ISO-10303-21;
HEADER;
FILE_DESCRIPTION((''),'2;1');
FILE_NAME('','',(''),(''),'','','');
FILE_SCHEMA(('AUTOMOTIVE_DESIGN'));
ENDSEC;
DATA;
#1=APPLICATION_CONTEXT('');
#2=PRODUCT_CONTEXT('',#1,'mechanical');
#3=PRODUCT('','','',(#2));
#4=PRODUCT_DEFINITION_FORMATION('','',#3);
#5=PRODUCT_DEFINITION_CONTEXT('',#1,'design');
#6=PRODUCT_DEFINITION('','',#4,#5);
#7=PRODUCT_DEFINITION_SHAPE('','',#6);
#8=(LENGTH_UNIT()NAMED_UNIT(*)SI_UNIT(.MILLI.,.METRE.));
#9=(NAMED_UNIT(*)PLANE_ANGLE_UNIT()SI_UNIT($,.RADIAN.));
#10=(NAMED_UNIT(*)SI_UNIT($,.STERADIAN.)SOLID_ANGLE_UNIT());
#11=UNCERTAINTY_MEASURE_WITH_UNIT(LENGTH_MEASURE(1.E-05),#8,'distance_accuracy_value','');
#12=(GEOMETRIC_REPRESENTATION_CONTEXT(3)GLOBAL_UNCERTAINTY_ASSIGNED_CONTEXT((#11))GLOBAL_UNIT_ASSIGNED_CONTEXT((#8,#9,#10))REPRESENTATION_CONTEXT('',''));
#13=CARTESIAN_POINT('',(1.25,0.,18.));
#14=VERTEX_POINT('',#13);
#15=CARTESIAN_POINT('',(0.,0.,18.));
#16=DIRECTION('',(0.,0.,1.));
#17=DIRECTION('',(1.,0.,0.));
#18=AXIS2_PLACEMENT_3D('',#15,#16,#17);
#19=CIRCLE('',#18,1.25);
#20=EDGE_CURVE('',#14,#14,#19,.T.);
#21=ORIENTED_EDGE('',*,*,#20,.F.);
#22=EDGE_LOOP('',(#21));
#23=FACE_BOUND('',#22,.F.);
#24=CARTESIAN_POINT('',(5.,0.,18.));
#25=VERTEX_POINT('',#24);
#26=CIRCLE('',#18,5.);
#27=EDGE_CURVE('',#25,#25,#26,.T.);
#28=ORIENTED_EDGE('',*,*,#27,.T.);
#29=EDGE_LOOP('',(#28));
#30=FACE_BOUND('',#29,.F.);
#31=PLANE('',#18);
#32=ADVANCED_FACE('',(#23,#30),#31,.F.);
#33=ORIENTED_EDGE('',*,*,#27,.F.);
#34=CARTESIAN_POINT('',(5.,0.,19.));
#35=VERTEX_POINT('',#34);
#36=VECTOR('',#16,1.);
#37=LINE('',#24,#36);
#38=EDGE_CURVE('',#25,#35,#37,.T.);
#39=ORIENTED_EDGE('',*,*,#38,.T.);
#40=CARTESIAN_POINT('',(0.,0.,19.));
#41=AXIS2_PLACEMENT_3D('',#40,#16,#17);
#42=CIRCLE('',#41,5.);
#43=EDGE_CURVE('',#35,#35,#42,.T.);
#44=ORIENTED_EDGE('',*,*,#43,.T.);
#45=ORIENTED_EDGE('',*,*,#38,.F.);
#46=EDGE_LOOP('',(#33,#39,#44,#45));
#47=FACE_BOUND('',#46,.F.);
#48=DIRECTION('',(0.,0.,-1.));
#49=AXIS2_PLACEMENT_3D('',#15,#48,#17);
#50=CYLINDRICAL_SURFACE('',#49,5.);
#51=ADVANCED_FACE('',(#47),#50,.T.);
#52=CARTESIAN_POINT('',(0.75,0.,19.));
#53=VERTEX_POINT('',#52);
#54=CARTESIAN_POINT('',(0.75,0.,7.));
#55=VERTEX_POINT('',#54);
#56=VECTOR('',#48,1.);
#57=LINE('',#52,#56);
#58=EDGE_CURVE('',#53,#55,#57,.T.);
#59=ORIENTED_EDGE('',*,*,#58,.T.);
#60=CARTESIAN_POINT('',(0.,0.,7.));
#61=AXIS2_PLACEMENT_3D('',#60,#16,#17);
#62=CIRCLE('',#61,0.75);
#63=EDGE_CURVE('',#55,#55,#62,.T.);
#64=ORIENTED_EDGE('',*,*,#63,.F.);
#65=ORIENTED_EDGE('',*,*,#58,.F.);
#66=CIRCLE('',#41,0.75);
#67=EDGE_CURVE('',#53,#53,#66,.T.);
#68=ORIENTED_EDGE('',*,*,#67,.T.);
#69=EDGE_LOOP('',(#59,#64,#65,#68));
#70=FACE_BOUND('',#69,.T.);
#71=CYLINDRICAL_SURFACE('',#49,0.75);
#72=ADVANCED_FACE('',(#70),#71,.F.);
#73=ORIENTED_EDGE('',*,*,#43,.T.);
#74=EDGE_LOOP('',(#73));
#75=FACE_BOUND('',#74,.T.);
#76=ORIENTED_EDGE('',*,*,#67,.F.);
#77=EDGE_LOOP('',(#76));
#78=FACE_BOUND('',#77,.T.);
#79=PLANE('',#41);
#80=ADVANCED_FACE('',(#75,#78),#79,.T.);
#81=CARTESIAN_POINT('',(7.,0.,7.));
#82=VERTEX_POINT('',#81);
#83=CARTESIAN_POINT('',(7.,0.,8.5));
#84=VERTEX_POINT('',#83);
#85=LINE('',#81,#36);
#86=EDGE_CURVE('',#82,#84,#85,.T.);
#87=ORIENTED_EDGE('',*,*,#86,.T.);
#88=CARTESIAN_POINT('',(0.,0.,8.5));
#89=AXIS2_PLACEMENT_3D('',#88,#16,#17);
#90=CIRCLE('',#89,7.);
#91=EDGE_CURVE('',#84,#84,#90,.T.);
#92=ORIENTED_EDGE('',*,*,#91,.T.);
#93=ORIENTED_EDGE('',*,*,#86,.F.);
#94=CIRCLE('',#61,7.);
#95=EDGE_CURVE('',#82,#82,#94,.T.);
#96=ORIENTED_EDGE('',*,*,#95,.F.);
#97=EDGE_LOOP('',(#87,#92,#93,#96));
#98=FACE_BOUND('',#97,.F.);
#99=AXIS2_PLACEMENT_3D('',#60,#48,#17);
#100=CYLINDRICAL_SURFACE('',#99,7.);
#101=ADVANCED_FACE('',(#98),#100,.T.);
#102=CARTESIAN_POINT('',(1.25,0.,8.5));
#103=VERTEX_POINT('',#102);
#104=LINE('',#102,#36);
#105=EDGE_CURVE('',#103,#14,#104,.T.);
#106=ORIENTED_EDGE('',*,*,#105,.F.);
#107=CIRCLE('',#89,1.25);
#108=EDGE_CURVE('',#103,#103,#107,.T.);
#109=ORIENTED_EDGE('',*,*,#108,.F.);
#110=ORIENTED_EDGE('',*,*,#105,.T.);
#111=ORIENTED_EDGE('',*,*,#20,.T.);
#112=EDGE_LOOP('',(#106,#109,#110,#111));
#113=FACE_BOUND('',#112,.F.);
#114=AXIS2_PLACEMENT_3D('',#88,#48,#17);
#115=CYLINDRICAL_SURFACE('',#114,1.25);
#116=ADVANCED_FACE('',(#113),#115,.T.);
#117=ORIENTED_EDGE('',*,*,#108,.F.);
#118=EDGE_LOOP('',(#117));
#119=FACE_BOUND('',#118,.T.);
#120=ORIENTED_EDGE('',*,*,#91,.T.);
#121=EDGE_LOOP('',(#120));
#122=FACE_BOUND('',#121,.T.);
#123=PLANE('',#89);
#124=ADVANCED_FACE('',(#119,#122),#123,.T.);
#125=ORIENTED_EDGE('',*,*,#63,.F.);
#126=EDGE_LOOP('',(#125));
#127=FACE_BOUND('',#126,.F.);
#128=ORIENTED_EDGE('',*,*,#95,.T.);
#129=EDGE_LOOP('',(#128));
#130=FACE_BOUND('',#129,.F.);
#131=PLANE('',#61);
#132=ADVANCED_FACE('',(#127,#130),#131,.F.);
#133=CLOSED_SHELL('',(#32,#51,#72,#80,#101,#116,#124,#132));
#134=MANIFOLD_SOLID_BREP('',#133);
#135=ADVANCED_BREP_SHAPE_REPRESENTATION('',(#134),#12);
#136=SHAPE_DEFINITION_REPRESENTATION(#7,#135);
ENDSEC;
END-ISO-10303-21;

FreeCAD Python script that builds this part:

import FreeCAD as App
import Part
import Sketcher
from FreeCAD import Vector
Q = App.Units.Quantity

doc = App.newDocument("Part")
body = doc.addObject("PartDesign::Body", "Body")

# Sketch on XY plane
sketch1 = body.newObject("Sketcher::SketchObject", "Sketch")
sketch1.AttachmentSupport = (doc.getObject("XY_Plane"), [""])
sketch1.MapMode = "FlatFace"
sketch1.AttachmentOffset = App.Placement(Vector(0, 0, 7), App.Rotation())
sketch1.addGeometry(Part.Circle(Vector(0, 0, 0), Vector(0, 0, 1), 7), False)
sketch1.addGeometry(Part.Circle(Vector(0, 0, 0), Vector(0, 0, 1), 0.8), False)
sketch1.addConstraint(Sketcher.Constraint("Coincident", 0, 3, -1, 1))
sketch1.addConstraint(Sketcher.Constraint("Coincident", 1, 3, -1, 1))
sketch1.addConstraint(Sketcher.Constraint("Diameter", 0, Q("14 mm")))
sketch1.addConstraint(Sketcher.Constraint("Diameter", 1, Q("1.5 mm")))
pad1 = body.newObject("PartDesign::Pad", "Pad")
pad1.Profile = sketch1
pad1.Length = 1.5

# Sketch on XY plane
sketch2 = body.newObject("Sketcher::SketchObject", "Sketch001")
sketch2.AttachmentSupport = (doc.getObject("XY_Plane"), [""])
sketch2.MapMode = "FlatFace"
sketch2.AttachmentOffset = App.Placement(Vector(0, 0, 8.5), App.Rotation())
sketch2.addGeometry(Part.Circle(Vector(0, 0, 0), Vector(0, 0, 1), 1.2), False)
sketch2.addGeometry(Part.Circle(Vector(0, 0, 0), Vector(0, 0, 1), 0.8), False)
sketch2.addConstraint(Sketcher.Constraint("Coincident", 0, 3, -1, 1))
sketch2.addConstraint(Sketcher.Constraint("Coincident", 1, 3, -1, 1))
sketch2.addConstraint(Sketcher.Constraint("Diameter", 0, Q("2.5 mm")))
sketch2.addConstraint(Sketcher.Constraint("Diameter", 1, Q("1.5 mm")))
pad2 = body.newObject("PartDesign::Pad", "Pad001")
pad2.Profile = sketch2
pad2.Length = 9.5

# Sketch on XY plane
sketch3 = body.newObject("Sketcher::SketchObject", "Sketch002")
sketch3.AttachmentSupport = (doc.getObject("XY_Plane"), [""])
sketch3.MapMode = "FlatFace"
sketch3.AttachmentOffset = App.Placement(Vector(0, 0, 18), App.Rotation())
sketch3.addGeometry(Part.Circle(Vector(0, 0, 0), Vector(0, 0, 1), 5), False)
sketch3.addGeometry(Part.Circle(Vector(0, 0, 0), Vector(0, 0, 1), 0.8), False)
sketch3.addConstraint(Sketcher.Constraint("Coincident", 0, 3, -1, 1))
sketch3.addConstraint(Sketcher.Constraint("Coincident", 1, 3, -1, 1))
sketch3.addConstraint(Sketcher.Constraint("Diameter", 0, Q("10 mm")))
sketch3.addConstraint(Sketcher.Constraint("Diameter", 1, Q("1.5 mm")))
pad3 = body.newObject("PartDesign::Pad", "Pad002")
pad3.Profile = sketch3
pad3.Length = 1

doc.recompute()
